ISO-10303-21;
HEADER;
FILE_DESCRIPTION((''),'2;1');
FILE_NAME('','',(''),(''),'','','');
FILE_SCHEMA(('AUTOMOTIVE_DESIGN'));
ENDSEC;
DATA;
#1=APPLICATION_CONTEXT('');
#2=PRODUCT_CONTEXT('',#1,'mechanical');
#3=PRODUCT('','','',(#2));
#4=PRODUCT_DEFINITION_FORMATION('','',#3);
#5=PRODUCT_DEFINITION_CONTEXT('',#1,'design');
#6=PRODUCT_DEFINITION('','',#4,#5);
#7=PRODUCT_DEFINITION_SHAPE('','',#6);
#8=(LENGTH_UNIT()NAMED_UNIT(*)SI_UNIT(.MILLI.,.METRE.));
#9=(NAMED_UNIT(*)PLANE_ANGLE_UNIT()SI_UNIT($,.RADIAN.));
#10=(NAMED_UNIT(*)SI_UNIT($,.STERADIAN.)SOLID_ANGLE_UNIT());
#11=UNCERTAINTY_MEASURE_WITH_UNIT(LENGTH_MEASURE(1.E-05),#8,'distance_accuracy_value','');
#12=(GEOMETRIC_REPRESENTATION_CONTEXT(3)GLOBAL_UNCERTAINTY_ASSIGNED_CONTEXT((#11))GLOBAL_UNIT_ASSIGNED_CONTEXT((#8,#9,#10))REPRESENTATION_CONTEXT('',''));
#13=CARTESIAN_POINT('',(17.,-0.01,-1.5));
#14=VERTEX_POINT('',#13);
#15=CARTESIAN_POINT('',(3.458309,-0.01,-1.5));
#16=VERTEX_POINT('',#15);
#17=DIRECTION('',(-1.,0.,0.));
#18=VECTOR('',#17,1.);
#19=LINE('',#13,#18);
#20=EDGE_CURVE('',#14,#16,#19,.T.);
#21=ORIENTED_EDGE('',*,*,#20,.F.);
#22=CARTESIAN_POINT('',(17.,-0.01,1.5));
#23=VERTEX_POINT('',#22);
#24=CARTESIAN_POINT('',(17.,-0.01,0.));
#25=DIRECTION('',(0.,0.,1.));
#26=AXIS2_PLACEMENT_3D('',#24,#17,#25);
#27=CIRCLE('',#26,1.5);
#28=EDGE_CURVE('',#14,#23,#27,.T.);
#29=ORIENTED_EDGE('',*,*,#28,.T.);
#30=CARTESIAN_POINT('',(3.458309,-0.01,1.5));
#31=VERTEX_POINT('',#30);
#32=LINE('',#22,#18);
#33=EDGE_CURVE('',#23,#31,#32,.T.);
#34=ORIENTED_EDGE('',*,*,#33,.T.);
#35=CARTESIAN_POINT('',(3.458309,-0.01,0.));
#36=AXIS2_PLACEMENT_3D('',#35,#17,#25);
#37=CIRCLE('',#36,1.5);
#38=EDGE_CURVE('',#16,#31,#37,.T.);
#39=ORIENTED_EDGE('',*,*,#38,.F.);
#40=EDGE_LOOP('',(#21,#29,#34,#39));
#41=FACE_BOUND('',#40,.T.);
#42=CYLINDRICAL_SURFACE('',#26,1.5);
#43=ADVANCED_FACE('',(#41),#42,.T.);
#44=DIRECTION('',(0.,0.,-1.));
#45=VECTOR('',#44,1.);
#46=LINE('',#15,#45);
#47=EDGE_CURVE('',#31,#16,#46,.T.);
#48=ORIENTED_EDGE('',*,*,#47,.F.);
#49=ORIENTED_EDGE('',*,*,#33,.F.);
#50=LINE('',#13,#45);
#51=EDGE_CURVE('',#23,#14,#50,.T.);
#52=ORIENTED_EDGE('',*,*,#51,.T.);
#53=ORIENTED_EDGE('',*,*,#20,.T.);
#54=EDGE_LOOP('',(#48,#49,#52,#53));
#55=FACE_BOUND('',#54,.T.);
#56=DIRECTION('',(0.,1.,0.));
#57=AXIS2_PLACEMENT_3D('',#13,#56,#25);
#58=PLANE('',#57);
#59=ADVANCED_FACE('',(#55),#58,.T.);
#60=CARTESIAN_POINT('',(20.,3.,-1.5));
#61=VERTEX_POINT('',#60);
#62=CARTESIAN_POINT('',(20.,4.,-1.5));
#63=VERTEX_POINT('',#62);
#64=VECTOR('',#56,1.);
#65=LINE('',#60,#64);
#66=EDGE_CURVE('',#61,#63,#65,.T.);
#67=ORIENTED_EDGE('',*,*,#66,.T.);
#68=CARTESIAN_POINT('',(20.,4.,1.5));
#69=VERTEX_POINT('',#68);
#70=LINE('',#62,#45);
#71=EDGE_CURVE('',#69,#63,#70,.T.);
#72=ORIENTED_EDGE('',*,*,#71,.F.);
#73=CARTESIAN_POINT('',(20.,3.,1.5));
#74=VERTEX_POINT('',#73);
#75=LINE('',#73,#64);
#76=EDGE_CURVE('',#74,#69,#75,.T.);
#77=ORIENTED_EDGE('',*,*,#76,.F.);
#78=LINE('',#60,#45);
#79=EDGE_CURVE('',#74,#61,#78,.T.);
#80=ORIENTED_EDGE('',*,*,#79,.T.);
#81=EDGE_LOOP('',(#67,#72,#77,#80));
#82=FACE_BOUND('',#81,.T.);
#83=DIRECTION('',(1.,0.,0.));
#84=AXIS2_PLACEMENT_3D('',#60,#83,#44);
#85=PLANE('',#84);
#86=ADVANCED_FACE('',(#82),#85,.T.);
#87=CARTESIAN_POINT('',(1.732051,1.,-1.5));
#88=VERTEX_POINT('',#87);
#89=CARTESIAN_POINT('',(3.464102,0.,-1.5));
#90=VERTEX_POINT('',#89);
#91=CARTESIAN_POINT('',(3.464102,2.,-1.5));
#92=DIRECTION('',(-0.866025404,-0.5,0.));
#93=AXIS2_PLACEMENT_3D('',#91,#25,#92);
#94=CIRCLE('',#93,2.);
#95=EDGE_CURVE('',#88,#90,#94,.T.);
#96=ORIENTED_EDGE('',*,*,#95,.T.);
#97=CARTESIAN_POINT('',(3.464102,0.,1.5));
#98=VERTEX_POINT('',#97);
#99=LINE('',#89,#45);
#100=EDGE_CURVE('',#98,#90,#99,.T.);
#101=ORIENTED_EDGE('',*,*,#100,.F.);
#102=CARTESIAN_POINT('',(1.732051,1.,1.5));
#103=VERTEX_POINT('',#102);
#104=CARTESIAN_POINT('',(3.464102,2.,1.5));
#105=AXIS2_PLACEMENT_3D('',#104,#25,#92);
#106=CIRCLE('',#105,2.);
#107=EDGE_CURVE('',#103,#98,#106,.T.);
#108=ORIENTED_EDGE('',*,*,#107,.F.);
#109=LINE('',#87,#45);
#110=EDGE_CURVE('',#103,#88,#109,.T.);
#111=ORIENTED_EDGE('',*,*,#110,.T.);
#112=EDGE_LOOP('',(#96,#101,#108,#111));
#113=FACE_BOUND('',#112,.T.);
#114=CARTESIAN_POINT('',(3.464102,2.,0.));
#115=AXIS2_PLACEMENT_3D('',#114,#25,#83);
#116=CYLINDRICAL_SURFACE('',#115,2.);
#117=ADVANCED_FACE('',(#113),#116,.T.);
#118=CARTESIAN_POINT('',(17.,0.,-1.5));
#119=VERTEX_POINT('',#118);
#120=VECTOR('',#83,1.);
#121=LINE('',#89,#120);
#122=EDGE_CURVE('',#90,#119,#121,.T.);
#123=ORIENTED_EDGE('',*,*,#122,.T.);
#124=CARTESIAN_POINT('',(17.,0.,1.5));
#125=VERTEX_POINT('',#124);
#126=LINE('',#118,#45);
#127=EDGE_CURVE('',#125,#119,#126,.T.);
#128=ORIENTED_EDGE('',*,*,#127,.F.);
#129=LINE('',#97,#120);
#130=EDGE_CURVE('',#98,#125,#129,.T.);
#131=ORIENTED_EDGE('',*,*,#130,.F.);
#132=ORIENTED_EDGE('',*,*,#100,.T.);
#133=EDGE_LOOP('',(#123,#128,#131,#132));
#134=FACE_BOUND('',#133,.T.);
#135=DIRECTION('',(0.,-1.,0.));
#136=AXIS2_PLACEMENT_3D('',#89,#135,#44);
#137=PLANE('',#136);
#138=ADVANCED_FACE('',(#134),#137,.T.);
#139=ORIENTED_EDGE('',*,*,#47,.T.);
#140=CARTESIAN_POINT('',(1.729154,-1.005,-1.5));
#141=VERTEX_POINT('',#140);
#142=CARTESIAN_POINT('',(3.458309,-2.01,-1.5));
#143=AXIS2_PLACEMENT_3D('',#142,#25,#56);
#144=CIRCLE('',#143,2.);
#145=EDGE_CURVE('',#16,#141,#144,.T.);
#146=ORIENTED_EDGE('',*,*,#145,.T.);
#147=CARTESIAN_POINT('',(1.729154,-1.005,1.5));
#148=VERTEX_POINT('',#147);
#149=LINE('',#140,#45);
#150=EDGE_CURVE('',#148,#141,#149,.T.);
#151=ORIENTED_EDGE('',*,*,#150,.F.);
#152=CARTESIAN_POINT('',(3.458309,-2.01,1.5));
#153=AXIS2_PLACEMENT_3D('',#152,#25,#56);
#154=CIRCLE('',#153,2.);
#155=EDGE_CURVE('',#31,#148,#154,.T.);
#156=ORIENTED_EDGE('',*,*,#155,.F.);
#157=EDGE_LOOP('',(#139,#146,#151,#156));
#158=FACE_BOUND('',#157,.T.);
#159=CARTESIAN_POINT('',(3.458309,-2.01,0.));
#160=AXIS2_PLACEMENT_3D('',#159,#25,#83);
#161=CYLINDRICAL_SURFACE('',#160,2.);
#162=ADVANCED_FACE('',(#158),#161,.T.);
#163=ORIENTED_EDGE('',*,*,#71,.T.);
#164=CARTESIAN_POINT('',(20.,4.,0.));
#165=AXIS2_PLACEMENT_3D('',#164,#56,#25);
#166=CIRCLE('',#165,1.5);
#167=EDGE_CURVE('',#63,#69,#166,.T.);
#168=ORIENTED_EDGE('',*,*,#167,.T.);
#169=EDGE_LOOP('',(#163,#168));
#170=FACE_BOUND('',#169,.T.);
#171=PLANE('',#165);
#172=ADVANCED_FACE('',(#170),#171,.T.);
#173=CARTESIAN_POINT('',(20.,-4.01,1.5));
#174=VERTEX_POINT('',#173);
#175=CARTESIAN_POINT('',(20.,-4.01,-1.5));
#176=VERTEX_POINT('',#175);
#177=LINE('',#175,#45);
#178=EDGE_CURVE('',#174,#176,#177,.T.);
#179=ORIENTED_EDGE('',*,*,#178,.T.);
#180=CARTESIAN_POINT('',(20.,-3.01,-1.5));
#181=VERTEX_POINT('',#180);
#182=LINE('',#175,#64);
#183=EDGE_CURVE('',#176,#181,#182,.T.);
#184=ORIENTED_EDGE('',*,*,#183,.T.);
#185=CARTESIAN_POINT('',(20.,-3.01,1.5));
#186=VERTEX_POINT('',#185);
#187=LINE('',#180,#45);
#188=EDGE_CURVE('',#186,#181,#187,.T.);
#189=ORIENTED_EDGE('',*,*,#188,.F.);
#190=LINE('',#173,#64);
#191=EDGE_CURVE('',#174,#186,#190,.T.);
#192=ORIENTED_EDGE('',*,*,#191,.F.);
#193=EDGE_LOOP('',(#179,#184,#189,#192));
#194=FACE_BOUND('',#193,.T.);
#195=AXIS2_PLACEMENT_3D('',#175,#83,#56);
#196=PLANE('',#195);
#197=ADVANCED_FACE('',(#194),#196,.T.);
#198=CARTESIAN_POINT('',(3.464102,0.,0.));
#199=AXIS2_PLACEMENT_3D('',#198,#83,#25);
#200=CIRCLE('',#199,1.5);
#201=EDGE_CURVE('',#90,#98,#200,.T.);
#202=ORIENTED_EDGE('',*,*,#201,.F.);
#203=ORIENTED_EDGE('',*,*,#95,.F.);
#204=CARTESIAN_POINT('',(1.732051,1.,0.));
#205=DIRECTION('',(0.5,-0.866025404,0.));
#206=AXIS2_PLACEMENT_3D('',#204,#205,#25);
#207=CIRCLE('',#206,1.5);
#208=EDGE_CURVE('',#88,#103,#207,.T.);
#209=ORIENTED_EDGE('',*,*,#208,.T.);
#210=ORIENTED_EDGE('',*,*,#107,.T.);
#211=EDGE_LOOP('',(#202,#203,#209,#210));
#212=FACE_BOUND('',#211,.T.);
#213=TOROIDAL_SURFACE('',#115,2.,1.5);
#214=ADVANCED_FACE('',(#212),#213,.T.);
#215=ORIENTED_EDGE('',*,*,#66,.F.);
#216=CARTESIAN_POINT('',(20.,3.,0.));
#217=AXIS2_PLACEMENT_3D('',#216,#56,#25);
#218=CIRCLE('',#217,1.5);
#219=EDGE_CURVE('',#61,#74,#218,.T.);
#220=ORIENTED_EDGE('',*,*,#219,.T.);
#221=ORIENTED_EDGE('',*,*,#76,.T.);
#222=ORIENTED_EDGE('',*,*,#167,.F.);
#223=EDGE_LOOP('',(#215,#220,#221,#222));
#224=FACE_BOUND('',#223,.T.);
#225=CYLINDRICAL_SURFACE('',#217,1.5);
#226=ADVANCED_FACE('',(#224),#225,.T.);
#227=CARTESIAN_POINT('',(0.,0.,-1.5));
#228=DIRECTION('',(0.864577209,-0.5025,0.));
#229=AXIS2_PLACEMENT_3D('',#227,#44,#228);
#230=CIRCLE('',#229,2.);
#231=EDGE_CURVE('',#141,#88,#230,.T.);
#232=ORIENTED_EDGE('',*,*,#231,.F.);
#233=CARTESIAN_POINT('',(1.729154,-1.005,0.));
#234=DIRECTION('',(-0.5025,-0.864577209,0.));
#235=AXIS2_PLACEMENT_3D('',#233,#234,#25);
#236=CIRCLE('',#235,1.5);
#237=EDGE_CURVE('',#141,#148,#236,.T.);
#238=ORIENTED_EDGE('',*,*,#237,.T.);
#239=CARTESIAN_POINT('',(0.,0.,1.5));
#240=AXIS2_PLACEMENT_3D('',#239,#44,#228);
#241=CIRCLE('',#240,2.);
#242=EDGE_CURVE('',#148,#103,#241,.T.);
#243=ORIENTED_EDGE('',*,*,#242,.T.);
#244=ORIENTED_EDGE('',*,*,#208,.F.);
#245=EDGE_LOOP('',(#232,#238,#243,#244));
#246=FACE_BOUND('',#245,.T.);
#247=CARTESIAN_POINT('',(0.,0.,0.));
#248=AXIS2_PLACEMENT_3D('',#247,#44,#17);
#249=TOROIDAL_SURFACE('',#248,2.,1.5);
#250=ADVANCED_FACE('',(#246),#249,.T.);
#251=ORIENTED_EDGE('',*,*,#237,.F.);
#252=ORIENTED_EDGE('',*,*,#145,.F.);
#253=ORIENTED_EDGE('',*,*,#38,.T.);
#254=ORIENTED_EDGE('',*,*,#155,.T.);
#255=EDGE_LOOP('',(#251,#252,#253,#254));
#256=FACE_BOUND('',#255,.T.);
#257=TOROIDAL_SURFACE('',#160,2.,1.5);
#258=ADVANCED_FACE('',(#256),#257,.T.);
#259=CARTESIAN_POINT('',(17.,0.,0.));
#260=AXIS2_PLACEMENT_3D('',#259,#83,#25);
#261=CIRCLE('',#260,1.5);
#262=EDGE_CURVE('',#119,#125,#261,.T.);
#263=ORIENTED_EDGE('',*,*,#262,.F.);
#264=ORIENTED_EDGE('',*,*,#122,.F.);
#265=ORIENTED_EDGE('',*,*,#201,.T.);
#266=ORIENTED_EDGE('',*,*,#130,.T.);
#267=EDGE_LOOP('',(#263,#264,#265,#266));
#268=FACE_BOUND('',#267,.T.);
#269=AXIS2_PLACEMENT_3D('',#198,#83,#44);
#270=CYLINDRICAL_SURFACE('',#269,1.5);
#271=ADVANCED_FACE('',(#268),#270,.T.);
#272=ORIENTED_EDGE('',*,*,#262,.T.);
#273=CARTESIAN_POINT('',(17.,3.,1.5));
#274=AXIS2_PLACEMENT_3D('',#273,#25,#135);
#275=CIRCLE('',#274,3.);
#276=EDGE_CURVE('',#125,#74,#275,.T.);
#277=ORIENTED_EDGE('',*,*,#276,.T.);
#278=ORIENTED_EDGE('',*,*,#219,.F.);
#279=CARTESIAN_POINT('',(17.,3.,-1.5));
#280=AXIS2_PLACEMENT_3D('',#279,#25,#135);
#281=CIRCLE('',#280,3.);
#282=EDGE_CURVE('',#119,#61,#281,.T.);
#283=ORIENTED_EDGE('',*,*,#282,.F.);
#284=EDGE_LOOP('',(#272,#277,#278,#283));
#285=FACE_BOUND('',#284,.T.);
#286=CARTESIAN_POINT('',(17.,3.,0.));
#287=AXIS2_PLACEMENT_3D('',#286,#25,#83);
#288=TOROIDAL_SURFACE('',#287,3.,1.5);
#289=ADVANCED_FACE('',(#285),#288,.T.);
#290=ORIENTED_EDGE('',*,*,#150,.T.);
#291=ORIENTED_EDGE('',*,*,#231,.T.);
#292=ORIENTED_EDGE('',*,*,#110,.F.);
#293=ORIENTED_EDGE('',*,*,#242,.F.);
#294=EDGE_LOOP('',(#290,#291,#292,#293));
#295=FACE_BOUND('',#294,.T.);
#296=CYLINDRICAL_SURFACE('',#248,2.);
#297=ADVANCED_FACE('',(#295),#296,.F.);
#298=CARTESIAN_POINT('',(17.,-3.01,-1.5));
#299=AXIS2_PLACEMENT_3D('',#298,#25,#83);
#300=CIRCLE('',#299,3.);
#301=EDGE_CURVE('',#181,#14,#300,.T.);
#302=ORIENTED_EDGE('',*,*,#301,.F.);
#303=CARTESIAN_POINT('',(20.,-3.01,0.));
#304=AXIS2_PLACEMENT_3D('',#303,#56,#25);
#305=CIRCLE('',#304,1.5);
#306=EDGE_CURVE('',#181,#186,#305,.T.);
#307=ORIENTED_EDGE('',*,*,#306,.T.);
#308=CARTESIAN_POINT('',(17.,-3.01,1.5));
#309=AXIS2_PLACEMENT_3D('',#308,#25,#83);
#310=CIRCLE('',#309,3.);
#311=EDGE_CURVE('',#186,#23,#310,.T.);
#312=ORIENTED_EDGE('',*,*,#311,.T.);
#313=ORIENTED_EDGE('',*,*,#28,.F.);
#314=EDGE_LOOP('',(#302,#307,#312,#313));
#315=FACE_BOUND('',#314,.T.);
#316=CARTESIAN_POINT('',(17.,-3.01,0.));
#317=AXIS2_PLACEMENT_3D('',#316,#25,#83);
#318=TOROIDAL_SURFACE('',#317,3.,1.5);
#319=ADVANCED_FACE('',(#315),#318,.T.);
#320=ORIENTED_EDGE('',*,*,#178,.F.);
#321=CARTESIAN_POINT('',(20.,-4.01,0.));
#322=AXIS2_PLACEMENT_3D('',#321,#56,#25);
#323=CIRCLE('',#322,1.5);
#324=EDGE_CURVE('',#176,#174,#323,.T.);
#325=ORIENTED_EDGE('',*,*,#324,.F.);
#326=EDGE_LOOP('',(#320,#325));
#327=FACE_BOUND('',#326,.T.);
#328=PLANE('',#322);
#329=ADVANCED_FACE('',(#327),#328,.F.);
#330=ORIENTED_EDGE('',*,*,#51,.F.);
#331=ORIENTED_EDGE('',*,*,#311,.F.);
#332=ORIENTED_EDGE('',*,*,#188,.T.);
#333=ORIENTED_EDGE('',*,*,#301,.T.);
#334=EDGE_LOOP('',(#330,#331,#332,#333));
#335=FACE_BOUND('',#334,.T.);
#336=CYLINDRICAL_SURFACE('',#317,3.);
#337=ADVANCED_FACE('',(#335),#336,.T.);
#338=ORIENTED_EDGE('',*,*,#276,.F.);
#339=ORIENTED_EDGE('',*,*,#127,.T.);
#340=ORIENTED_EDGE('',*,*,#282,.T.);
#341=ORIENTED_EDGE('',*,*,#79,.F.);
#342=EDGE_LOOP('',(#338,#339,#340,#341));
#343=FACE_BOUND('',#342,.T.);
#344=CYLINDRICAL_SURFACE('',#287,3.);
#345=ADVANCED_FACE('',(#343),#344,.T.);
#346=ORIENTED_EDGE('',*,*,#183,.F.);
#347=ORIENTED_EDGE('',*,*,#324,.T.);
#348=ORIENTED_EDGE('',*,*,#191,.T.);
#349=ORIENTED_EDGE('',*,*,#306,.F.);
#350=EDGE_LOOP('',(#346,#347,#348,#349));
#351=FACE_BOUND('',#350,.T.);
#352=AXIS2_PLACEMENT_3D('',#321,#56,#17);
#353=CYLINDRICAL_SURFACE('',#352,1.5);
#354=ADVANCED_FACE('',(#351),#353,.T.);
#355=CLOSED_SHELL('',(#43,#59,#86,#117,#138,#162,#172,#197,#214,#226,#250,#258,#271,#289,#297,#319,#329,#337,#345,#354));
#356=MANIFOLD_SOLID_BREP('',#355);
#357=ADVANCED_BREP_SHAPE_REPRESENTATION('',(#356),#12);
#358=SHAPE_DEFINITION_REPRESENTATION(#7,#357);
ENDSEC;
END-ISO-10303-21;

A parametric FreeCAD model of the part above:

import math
import FreeCAD as App
import Part
import Sketcher

V = App.Vector

doc = App.newDocument("Part")
params = doc.addObject("Spreadsheet::Sheet", "Params")
for row, (alias, value) in enumerate([
    ("sketch1_radius", "1.5 mm"),
    ("sketch2_radius", "3 mm"),
    ("sketch2_radius2", "2 mm"),
    ("sketch2_height", "1 mm"),
], start=1):
    params.set(f"A{row}", alias)
    params.set(f"B{row}", "=" + value)
    params.setAlias(f"B{row}", alias)

body = doc.addObject("PartDesign::Body", "Body")

# Sketch on XZ plane
sketch1 = body.newObject("Sketcher::SketchObject", "Sketch")
sketch1.AttachmentSupport = (doc.getObject("XZ_Plane"), [""])
sketch1.MapMode = "FlatFace"
sketch1.AttachmentOffset = App.Placement(V(0, 0, -4), App.Rotation())
sketch1.addGeometry([
    Part.LineSegment(V(20, 1.5, 0), V(20, -1.5, 0)),
    Part.ArcOfCircle(Part.Circle(V(20, 0, 0), V(0, 0, 1), 1.5), math.radians(90), math.radians(270)),
], False)
sketch1.addConstraint([
    Sketcher.Constraint("Coincident", 0, 1, 1, 1),
    Sketcher.Constraint("Coincident", 1, 2, 0, 2),
    Sketcher.Constraint("Vertical", 0),
    Sketcher.Constraint("PointOnObject", 1, 3, -1),
    Sketcher.Constraint("Vertical", 1, 3, 0, 1),
    Sketcher.Constraint("Radius", 1, 1.5),
    Sketcher.Constraint("DistanceX", -1, 1, 1, 3, 20.0),
])
sketch1.setExpression("Constraints[5]", "Params.sketch1_radius")

# Sketch on XY plane
sketch2 = body.newObject("Sketcher::SketchObject", "Sketch001")
sketch2.AttachmentSupport = (doc.getObject("XY_Plane"), [""])
sketch2.MapMode = "FlatFace"
sketch2.addGeometry([
    Part.LineSegment(V(20, 4, 0), V(20, 3, 0)),  # 0
    Part.ArcOfCircle(Part.Circle(V(17, 3, 0), V(0, 0, 1), 3), math.radians(-90), math.radians(0)),  # 1
    Part.LineSegment(V(17, 0, 0), V(3.5, 0, 0)),  # 2
    Part.ArcOfCircle(Part.Circle(V(3.5, 2, 0), V(0, 0, 1), 2), math.radians(-150), math.radians(-90)),  # 3
    Part.ArcOfCircle(Part.Circle(V(0, 0, 0), V(0, 0, 1), 2), math.radians(30), math.radians(330)),  # 4
    Part.ArcOfCircle(Part.Circle(V(3.5, -2, 0), V(0, 0, 1), 2), math.radians(90), math.radians(150)),  # 5
    Part.LineSegment(V(3.5, 0, 0), V(17, 0, 0)),  # 6
    Part.ArcOfCircle(Part.Circle(V(17, -3, 0), V(0, 0, 1), 3), math.radians(0), math.radians(90)),  # 7
    Part.LineSegment(V(20, -3, 0), V(20, -4, 0)),  # 8
], False)
sketch2.addConstraint([
    Sketcher.Constraint("Tangent", 0, 2, 1, 2),
    Sketcher.Constraint("Tangent", 1, 1, 2, 1),
    Sketcher.Constraint("Tangent", 2, 2, 3, 2),
    Sketcher.Constraint("Tangent", 3, 1, 4, 1),
    Sketcher.Constraint("Tangent", 4, 2, 5, 2),
    Sketcher.Constraint("Tangent", 5, 1, 6, 1),
    Sketcher.Constraint("Tangent", 6, 2, 7, 2),
    Sketcher.Constraint("Tangent", 7, 1, 8, 1),
    Sketcher.Constraint("Vertical", 0),
    Sketcher.Constraint("Horizontal", 2),
    Sketcher.Constraint("Horizontal", 6),
    Sketcher.Constraint("Vertical", 8),
    Sketcher.Constraint("Coincident", 4, 3, -1, 1),
    Sketcher.Constraint("Equal", 3, 4),
    Sketcher.Constraint("Equal", 4, 5),
    Sketcher.Constraint("Equal", 1, 7),
    Sketcher.Constraint("PointOnObject", 1, 1, -1),
    Sketcher.Constraint("Vertical", 1, 3, 7, 3),
    Sketcher.Constraint("Equal", 0, 8),
    Sketcher.Constraint("Radius", 1, 3.0),
    Sketcher.Constraint("Radius", 3, 2.0),
    Sketcher.Constraint("DistanceY", 0, 2, 0, 1, 1.0),
    Sketcher.Constraint("DistanceX", -1, 1, 1, 3, 17.0),
    Sketcher.Constraint("DistanceY", 5, 3, -1, 1, 2.01),
])
sketch2.setExpression("Constraints[19]", "Params.sketch2_radius")
sketch2.setExpression("Constraints[20]", "Params.sketch2_radius2")
sketch2.setExpression("Constraints[21]", "Params.sketch2_height")
doc.recompute()

additivepipe = body.newObject("PartDesign::AdditivePipe", "AdditivePipe")
additivepipe.Profile = sketch1
additivepipe.Spine = (sketch2, ["Edge1", "Edge2", "Edge3", "Edge4", "Edge5", "Edge6", "Edge7", "Edge8", "Edge9"])

doc.recompute()
